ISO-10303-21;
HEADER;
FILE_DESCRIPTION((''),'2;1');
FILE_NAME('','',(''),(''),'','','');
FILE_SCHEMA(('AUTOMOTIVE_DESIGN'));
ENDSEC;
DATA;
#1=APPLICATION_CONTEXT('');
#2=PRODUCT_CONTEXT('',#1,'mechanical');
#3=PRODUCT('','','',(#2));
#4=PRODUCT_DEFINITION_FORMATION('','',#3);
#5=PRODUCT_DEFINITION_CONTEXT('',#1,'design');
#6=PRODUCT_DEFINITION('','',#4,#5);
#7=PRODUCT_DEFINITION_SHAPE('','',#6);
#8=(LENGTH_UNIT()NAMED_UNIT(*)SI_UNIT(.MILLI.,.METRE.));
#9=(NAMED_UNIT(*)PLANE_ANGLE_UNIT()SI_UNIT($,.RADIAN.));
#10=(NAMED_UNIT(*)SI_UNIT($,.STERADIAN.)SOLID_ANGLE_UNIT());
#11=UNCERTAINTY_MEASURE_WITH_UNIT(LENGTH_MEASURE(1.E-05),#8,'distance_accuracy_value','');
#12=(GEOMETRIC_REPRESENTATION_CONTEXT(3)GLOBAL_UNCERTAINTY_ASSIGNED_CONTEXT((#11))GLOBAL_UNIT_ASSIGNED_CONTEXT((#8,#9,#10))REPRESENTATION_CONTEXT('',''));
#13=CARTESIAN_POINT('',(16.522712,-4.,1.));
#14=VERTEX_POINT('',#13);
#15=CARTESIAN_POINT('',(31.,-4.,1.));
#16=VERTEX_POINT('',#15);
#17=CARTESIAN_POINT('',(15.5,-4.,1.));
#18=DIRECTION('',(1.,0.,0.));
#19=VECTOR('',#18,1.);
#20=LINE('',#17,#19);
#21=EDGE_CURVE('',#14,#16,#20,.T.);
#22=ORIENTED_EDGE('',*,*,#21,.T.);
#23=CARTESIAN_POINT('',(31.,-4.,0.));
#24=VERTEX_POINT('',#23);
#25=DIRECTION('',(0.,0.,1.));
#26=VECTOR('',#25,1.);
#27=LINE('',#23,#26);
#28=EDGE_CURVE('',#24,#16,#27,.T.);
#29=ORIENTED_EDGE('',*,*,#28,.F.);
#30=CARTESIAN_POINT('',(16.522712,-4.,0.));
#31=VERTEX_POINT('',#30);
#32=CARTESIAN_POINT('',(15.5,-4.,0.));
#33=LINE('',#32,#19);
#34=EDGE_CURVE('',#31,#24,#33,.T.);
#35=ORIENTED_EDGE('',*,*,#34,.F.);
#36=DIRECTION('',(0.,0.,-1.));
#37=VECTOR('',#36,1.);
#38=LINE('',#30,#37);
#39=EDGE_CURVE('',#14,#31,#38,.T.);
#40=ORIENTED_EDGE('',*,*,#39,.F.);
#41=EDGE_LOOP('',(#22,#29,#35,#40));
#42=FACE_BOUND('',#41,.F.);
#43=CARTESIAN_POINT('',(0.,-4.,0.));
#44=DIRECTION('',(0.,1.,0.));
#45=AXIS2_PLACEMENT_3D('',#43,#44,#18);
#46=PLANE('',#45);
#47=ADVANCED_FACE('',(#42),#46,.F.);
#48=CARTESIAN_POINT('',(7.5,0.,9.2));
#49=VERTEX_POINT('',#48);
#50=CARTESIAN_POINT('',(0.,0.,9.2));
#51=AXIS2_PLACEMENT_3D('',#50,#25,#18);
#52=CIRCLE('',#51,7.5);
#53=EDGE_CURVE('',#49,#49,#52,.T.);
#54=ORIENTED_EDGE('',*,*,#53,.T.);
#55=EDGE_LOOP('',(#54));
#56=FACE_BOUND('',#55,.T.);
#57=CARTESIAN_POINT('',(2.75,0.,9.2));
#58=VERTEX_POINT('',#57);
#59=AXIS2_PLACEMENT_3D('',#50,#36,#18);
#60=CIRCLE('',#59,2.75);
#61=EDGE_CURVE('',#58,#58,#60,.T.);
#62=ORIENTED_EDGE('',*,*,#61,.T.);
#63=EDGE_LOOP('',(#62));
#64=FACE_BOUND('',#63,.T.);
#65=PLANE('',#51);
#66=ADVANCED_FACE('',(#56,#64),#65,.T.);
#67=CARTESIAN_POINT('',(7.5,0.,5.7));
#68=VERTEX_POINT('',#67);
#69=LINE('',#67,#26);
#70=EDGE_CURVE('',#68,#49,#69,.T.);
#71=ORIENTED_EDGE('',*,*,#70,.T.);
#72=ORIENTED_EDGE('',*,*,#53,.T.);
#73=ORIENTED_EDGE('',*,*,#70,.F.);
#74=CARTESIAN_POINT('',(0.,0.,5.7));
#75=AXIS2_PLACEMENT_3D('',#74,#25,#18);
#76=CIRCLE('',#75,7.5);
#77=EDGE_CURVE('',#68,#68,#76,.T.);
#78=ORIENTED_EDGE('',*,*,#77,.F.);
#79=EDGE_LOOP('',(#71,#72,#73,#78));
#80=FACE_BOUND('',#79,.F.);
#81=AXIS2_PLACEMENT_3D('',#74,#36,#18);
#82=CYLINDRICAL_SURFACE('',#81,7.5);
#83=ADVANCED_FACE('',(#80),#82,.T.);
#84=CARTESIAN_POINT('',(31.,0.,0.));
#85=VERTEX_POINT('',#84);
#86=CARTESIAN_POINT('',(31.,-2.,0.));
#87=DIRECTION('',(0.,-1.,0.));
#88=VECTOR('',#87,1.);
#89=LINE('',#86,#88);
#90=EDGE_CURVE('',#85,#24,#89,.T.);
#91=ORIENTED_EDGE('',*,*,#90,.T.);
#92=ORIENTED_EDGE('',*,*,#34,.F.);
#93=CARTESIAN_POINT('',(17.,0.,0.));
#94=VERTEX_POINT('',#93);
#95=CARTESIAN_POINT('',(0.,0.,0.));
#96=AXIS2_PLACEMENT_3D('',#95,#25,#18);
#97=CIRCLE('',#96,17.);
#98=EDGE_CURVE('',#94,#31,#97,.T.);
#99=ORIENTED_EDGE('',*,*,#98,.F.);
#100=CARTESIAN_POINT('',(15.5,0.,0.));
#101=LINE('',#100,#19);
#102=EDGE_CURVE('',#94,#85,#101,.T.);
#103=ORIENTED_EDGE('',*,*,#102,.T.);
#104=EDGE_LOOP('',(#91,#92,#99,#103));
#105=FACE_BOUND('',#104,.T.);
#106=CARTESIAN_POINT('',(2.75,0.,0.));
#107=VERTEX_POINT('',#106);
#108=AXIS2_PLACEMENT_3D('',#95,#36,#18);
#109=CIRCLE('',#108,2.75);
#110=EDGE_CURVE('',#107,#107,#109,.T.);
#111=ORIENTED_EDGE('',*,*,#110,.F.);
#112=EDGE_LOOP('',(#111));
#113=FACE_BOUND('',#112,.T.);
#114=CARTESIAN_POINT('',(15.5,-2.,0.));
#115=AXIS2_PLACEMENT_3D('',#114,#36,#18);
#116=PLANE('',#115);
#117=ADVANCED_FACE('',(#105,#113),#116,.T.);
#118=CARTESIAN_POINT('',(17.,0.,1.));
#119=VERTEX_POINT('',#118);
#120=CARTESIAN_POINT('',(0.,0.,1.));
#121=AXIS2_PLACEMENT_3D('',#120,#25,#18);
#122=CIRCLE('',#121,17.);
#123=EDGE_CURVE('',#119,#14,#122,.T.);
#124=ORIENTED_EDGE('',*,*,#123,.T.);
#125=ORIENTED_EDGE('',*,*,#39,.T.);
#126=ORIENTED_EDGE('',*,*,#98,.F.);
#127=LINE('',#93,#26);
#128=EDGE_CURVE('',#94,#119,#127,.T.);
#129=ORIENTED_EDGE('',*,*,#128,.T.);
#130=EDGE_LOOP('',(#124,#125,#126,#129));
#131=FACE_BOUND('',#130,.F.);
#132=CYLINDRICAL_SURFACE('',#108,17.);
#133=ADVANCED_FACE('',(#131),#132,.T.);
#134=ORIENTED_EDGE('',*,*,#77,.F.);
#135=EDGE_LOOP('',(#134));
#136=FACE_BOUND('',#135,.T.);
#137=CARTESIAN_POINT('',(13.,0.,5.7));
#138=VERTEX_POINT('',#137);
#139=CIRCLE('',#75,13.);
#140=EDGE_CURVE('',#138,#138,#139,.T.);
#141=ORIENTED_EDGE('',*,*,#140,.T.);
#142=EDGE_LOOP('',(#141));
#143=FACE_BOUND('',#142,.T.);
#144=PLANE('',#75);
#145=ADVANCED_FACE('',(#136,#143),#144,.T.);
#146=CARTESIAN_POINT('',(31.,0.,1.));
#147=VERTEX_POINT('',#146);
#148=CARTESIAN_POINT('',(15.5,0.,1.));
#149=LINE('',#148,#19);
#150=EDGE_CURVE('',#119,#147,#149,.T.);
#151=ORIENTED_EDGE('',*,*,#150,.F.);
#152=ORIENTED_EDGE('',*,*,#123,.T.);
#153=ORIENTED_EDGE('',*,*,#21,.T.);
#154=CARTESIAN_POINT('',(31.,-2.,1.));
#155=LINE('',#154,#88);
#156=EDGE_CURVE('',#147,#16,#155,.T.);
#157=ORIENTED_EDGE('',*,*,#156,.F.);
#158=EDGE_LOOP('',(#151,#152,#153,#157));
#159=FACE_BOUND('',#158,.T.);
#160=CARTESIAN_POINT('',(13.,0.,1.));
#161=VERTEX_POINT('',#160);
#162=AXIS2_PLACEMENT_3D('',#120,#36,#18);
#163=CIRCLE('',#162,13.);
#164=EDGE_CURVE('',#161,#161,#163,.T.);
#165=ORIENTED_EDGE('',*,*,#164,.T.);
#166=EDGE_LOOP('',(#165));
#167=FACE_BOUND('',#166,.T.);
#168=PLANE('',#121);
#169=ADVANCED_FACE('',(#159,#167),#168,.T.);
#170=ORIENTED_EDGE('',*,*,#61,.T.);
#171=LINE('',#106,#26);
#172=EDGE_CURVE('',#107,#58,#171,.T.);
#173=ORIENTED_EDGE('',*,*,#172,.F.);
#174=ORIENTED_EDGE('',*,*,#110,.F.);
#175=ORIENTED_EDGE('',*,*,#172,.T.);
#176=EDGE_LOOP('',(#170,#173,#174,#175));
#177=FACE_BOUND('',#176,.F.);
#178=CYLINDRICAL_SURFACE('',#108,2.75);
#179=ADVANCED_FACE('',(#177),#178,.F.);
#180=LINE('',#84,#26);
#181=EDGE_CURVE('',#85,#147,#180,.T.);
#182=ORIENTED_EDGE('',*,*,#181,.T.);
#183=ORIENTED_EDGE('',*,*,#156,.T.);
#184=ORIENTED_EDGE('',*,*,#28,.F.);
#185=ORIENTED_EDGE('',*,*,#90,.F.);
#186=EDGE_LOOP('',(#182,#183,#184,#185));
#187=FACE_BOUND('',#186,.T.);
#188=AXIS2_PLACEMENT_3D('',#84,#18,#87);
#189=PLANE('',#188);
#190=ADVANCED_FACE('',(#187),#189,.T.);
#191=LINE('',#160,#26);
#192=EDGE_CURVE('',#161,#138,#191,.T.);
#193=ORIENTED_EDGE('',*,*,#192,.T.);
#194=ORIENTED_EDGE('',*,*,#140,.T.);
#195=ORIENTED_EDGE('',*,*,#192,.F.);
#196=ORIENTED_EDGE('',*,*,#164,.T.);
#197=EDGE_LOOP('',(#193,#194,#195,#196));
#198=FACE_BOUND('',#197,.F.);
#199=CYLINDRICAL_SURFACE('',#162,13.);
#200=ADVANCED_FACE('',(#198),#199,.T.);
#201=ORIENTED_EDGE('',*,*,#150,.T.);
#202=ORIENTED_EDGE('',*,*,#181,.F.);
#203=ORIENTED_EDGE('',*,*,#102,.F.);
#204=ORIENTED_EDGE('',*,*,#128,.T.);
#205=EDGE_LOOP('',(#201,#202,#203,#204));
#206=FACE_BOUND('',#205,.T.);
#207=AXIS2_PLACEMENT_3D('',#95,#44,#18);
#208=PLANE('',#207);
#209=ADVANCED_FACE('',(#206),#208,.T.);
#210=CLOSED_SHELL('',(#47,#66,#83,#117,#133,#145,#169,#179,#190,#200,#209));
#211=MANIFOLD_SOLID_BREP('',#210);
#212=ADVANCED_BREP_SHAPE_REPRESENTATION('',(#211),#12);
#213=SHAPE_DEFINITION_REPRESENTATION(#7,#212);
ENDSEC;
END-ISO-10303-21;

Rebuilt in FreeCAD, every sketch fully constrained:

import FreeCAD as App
import Part
import Sketcher
from FreeCAD import Vector

doc = App.newDocument("Part")
params = doc.addObject("Spreadsheet::Sheet", "Params")
for row, (alias, value) in enumerate([
    ("sketch1_diameter", "34 mm"),
    ("pad1_length", "1 mm"),
    ("sketch2_diameter", "26 mm"),
    ("pad2_length", "4.7 mm"),
    ("sketch3_diameter", "15 mm"),
    ("pad3_length", "3.5 mm"),
    ("sketch4_width", "31 mm"),
    ("sketch4_height", "4 mm"),
    ("pad4_length", "1 mm"),
    ("sketch5_diameter", "5.5 mm"),
], start=1):
    params.set(f"A{row}", alias)
    params.set(f"B{row}", "=" + value)
    params.setAlias(f"B{row}", alias)

body = doc.addObject("PartDesign::Body", "Body")

# Sketch on XY plane
sketch1 = body.newObject("Sketcher::SketchObject", "Sketch")
sketch1.AttachmentSupport = (doc.getObject("XY_Plane"), [""])
sketch1.MapMode = "FlatFace"
sketch1.addGeometry(Part.Circle(Vector(0, 0, 0), Vector(0, 0, 1), 17), False)
sketch1.addConstraint([
    Sketcher.Constraint("Coincident", 0, 3, -1, 1),
    Sketcher.Constraint("Diameter", 0, 34.0),
])
sketch1.setExpression("Constraints[1]", "Params.sketch1_diameter")
pad1 = body.newObject("PartDesign::Pad", "Pad")
pad1.Profile = sketch1
pad1.setExpression("Length", "Params.pad1_length")

# Sketch on XY plane
sketch2 = body.newObject("Sketcher::SketchObject", "Sketch001")
sketch2.AttachmentSupport = (doc.getObject("XY_Plane"), [""])
sketch2.MapMode = "FlatFace"
sketch2.AttachmentOffset = App.Placement(Vector(0, 0, 1), App.Rotation())
sketch2.addGeometry(Part.Circle(Vector(0, 0, 0), Vector(0, 0, 1), 13), False)
sketch2.addConstraint([
    Sketcher.Constraint("Coincident", 0, 3, -1, 1),
    Sketcher.Constraint("Diameter", 0, 26.0),
])
sketch2.setExpression("Constraints[1]", "Params.sketch2_diameter")
pad2 = body.newObject("PartDesign::Pad", "Pad001")
pad2.Profile = sketch2
pad2.setExpression("Length", "Params.pad2_length")

# Sketch on XY plane
sketch3 = body.newObject("Sketcher::SketchObject", "Sketch002")
sketch3.AttachmentSupport = (doc.getObject("XY_Plane"), [""])
sketch3.MapMode = "FlatFace"
sketch3.AttachmentOffset = App.Placement(Vector(0, 0, 5.7), App.Rotation())
sketch3.addGeometry(Part.Circle(Vector(0, 0, 0), Vector(0, 0, 1), 7.5), False)
sketch3.addConstraint([
    Sketcher.Constraint("Coincident", 0, 3, -1, 1),
    Sketcher.Constraint("Diameter", 0, 15.0),
])
sketch3.setExpression("Constraints[1]", "Params.sketch3_diameter")
pad3 = body.newObject("PartDesign::Pad", "Pad002")
pad3.Profile = sketch3
pad3.setExpression("Length", "Params.pad3_length")

# Sketch on XY plane
sketch4 = body.newObject("Sketcher::SketchObject", "Sketch003")
sketch4.AttachmentSupport = (doc.getObject("XY_Plane"), [""])
sketch4.MapMode = "FlatFace"
sketch4.addGeometry([
    Part.LineSegment(Vector(0, -4, 0), Vector(0, 0, 0)),
    Part.LineSegment(Vector(0, 0, 0), Vector(31, 0, 0)),
    Part.LineSegment(Vector(31, 0, 0), Vector(31, -4, 0)),
    Part.LineSegment(Vector(31, -4, 0), Vector(0, -4, 0)),
], False)
sketch4.addConstraint([
    Sketcher.Constraint("Coincident", 0, 2, 1, 1),
    Sketcher.Constraint("Coincident", 1, 2, 2, 1),
    Sketcher.Constraint("Coincident", 2, 2, 3, 1),
    Sketcher.Constraint("Coincident", 3, 2, 0, 1),
    Sketcher.Constraint("Vertical", 0),
    Sketcher.Constraint("Horizontal", 1),
    Sketcher.Constraint("Vertical", 2),
    Sketcher.Constraint("Horizontal", 3),
    Sketcher.Constraint("Coincident", 0, 2, -1, 1),
    Sketcher.Constraint("DistanceX", 1, 1, 1, 2, 31.0),
    Sketcher.Constraint("DistanceY", 0, 1, 0, 2, 4.0),
])
sketch4.setExpression("Constraints[9]", "Params.sketch4_width")
sketch4.setExpression("Constraints[10]", "Params.sketch4_height")
pad4 = body.newObject("PartDesign::Pad", "Pad003")
pad4.Profile = sketch4
pad4.setExpression("Length", "Params.pad4_length")

# Sketch on XY plane
sketch5 = body.newObject("Sketcher::SketchObject", "Sketch004")
sketch5.AttachmentSupport = (doc.getObject("XY_Plane"), [""])
sketch5.MapMode = "FlatFace"
sketch5.addGeometry(Part.Circle(Vector(0, 0, 0), Vector(0, 0, 1), 2.75), False)
sketch5.addConstraint([
    Sketcher.Constraint("Coincident", 0, 3, -1, 1),
    Sketcher.Constraint("Diameter", 0, 5.5),
])
sketch5.setExpression("Constraints[1]", "Params.sketch5_diameter")
pocket1 = body.newObject("PartDesign::Pocket", "Pocket")
pocket1.Profile = sketch5
pocket1.Type = "ThroughAll"
pocket1.Reversed = True

doc.recompute()
